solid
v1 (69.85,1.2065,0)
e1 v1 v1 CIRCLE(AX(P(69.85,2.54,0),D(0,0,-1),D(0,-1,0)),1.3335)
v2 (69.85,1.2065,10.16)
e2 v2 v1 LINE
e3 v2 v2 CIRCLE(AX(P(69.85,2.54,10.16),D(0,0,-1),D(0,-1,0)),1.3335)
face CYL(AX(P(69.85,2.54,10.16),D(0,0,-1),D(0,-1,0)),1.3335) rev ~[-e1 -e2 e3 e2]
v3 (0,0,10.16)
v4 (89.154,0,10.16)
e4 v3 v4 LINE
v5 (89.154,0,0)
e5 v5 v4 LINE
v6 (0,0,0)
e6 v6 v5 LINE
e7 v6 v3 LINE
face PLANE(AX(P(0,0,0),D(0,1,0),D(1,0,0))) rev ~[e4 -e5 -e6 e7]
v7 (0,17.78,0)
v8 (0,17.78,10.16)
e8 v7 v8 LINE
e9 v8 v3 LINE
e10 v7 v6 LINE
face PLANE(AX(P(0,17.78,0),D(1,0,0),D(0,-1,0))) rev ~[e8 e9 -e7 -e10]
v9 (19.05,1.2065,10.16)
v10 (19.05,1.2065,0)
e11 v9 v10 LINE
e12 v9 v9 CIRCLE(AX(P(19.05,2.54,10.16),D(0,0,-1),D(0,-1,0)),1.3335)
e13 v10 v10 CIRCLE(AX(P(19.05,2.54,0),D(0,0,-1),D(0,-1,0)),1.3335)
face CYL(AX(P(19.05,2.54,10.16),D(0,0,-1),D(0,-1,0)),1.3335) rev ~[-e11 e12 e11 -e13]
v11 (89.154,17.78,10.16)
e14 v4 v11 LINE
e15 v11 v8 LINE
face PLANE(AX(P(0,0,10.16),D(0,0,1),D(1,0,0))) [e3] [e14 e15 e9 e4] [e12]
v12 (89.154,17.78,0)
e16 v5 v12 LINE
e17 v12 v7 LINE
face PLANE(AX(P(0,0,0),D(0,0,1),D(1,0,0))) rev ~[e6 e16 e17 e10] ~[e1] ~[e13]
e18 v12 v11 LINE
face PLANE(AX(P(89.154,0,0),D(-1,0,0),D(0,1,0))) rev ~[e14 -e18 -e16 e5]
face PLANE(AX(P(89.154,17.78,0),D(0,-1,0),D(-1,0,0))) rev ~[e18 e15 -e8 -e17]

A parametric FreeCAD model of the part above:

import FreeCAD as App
import Part
import Sketcher

V = App.Vector
Q = App.Units.Quantity


def add_polygon(sketch, points):
    """Adds a closed chain of lines whose ends are joined by coincident constraints."""
    first, n = sketch.GeometryCount, len(points)
    for a, b in zip(points, points[1:] + points[:1]):
        sketch.addGeometry(Part.LineSegment(App.Vector(*a, 0), App.Vector(*b, 0)), False)
    for i in range(n):
        sketch.addConstraint(Sketcher.Constraint("Coincident", first + i, 2, first + (i + 1) % n, 1))

doc = App.newDocument("Part")
body = doc.addObject("PartDesign::Body", "Body")

# Sketch on XY plane
sketch1 = body.newObject("Sketcher::SketchObject", "Sketch")
sketch1.AttachmentSupport = (doc.getObject("XY_Plane"), [""])
sketch1.MapMode = "FlatFace"
add_polygon(sketch1, [(0, 18), (0, 0), (89, 0), (89, 18)])  # lines 0-3
sketch1.addConstraint(Sketcher.Constraint("Vertical", 0))
sketch1.addConstraint(Sketcher.Constraint("Horizontal", 1))
sketch1.addConstraint(Sketcher.Constraint("Vertical", 2))
sketch1.addConstraint(Sketcher.Constraint("Horizontal", 3))
sketch1.addConstraint(Sketcher.Constraint("Coincident", 0, 2, -1, 1))
sketch1.addConstraint(Sketcher.Constraint("DistanceY", 0, 2, 0, 1, Q("0.7 in")))
sketch1.addConstraint(Sketcher.Constraint("DistanceX", 1, 1, 1, 2, Q("3.51 in")))
pad1 = body.newObject("PartDesign::Pad", "Pad")
pad1.Profile = sketch1
pad1.Length = Q("0.4 in")

# Sketch on XY plane
sketch2 = body.newObject("Sketcher::SketchObject", "Sketch001")
sketch2.AttachmentSupport = (doc.getObject("XY_Plane"), [""])
sketch2.MapMode = "FlatFace"
sketch2.AttachmentOffset = App.Placement(V(0, 0, 0.4 * 25.4), App.Rotation())
sketch2.addGeometry(Part.Circle(V(19.1, 2.5, 0), V(0, 0, 1), 1.3), False)
sketch2.addGeometry(Part.Circle(V(69.8, 2.5, 0), V(0, 0, 1), 1.3), False)
sketch2.addConstraint(Sketcher.Constraint("Equal", 0, 1))
sketch2.addConstraint(Sketcher.Constraint("Horizontal", 0, 3, 1, 3))
sketch2.addConstraint(Sketcher.Constraint("Diameter", 0, Q("0.105 in")))
sketch2.addConstraint(Sketcher.Constraint("DistanceX", 0, 3, 1, 3, Q("2 in")))
sketch2.addConstraint(Sketcher.Constraint("DistanceY", -1, 1, 0, 3, Q("0.1 in")))
sketch2.addConstraint(Sketcher.Constraint("DistanceX", -1, 1, 0, 3, Q("0.75 in")))
doc.recompute()
hole = body.newObject("PartDesign::Hole", "Hole")
hole.Profile = sketch2
hole.ThreadType = "None"
hole.Diameter = Q("0.105 in")
hole.DepthType = "ThroughAll"

doc.recompute()
